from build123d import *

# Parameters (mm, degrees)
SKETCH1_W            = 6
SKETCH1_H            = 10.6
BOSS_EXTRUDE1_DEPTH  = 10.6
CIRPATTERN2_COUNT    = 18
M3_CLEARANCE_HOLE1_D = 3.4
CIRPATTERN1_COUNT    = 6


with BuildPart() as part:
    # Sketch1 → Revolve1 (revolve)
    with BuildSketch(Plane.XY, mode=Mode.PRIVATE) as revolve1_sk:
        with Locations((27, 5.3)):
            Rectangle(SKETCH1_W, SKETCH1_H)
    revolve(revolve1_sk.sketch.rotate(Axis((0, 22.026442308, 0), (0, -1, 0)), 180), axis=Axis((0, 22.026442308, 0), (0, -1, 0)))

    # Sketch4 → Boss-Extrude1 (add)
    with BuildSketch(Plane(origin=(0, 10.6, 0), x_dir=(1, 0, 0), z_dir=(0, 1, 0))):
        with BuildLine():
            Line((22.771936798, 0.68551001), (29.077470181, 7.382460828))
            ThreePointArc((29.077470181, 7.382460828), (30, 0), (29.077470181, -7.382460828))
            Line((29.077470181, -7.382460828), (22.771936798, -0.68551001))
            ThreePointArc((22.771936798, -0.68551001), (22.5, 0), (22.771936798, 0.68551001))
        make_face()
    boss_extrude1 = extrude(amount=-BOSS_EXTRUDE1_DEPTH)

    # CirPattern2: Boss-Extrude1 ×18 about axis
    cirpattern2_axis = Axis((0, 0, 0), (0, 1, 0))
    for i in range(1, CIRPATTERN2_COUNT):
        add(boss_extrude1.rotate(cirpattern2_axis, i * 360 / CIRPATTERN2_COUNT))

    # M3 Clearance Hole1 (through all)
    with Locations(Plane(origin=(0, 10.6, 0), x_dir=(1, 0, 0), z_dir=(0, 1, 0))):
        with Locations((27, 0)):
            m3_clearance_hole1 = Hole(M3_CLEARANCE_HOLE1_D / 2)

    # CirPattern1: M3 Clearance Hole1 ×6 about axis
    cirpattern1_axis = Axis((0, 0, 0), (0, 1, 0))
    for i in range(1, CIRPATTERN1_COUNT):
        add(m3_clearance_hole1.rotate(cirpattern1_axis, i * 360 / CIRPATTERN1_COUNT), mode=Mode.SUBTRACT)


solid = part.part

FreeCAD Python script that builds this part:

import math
import FreeCAD as App
import Part
import Sketcher

doc = App.newDocument("Part")
body = doc.addObject("PartDesign::Body", "Body")

# Sketch on XY plane
sketch1 = body.newObject("Sketcher::SketchObject", "Sketch")
sketch1.AttachmentSupport = (doc.getObject("XY_Plane"), [""])
sketch1.MapMode = "FlatFace"
sketch1.addGeometry(Part.LineSegment(App.Vector(24, 10.6, 0), App.Vector(24, 0, 0)), False)
sketch1.addGeometry(Part.LineSegment(App.Vector(24, 0, 0), App.Vector(30, 0, 0)), False)
sketch1.addGeometry(Part.LineSegment(App.Vector(30, 0, 0), App.Vector(30, 10.6, 0)), False)
sketch1.addGeometry(Part.LineSegment(App.Vector(30, 10.6, 0), App.Vector(24, 10.6, 0)), False)
sketch1.addConstraint(Sketcher.Constraint("Coincident", 0, 2, 1, 1))
sketch1.addConstraint(Sketcher.Constraint("Coincident", 1, 2, 2, 1))
sketch1.addConstraint(Sketcher.Constraint("Coincident", 2, 2, 3, 1))
sketch1.addConstraint(Sketcher.Constraint("Coincident", 3, 2, 0, 1))
sketch1.addConstraint(Sketcher.Constraint("Vertical", 0))
sketch1.addConstraint(Sketcher.Constraint("Horizontal", 1))
sketch1.addConstraint(Sketcher.Constraint("Vertical", 2))
sketch1.addConstraint(Sketcher.Constraint("Horizontal", 3))
sketch1.addConstraint(Sketcher.Constraint("PointOnObject", 0, 2, -1))
sketch1.addConstraint(Sketcher.Constraint("DistanceX", 1, 1, 1, 2, 6.0))
sketch1.addConstraint(Sketcher.Constraint("DistanceY", 0, 2, 0, 1, 10.6))
sketch1.addConstraint(Sketcher.Constraint("DistanceX", -1, 1, 0, 2, 24.0))
revolution = body.newObject("PartDesign::Revolution", "Revolution")
revolution.Profile = sketch1
revolution.ReferenceAxis = (sketch1, ["V_Axis"])
revolution.Angle = 360

# Sketch on XZ plane
sketch2 = body.newObject("Sketcher::SketchObject", "Sketch001")
sketch2.AttachmentSupport = (doc.getObject("XZ_Plane"), [""])
sketch2.MapMode = "FlatFace"
sketch2.AttachmentOffset = App.Placement(App.Vector(0, 0, -10.6), App.Rotation())
sketch2.addGeometry(Part.LineSegment(App.Vector(29.07747, -7.382461, 0), App.Vector(22.771937, -0.68551, 0)), False)
sketch2.addGeometry(Part.ArcOfCircle(Part.Circle(App.Vector(23.5, 0, 0), App.Vector(0, 0, 1), 1), math.radians(136.72427), math.radians(223.27573)), False)
sketch2.addGeometry(Part.LineSegment(App.Vector(22.771937, 0.68551, 0), App.Vector(29.07747, 7.382461, 0)), False)
sketch2.addGeometry(Part.ArcOfCircle(Part.Circle(App.Vector(0, 0, 0), App.Vector(0, 0, 1), 30), math.radians(-14.245787), math.radians(14.245787)), False)
sketch2.addConstraint(Sketcher.Constraint("Tangent", 0, 2, 1, 2))
sketch2.addConstraint(Sketcher.Constraint("Tangent", 1, 1, 2, 1))
sketch2.addConstraint(Sketcher.Constraint("Coincident", 2, 2, 3, 2))
sketch2.addConstraint(Sketcher.Constraint("Coincident", 3, 1, 0, 1))
sketch2.addConstraint(Sketcher.Constraint("Coincident", 3, 3, -1, 1))
sketch2.addConstraint(Sketcher.Constraint("Symmetric", 0, 2, 1, 1, -1))
sketch2.addConstraint(Sketcher.Constraint("Radius", 1, 1.0))
sketch2.addConstraint(Sketcher.Constraint("Radius", 3, 30.0))
sketch2.addConstraint(Sketcher.Constraint("DistanceX", -1, 1, 1, 3, 23.5))
sketch2.addConstraint(Sketcher.Constraint("Distance", 0, 9.19831))
pad1 = body.newObject("PartDesign::Pad", "Pad")
pad1.Profile = sketch2
pad1.Length = 10.6
doc.recompute()

polarpattern = body.newObject("PartDesign::PolarPattern", "PolarPattern")
polarpattern.Originals = [pad1]
polarpattern.Axis = (doc.getObject("Y_Axis"), [""])
polarpattern.Angle = 360
polarpattern.Occurrences = 18
body.Tip = polarpattern

# Sketch on XZ plane
sketch3 = body.newObject("Sketcher::SketchObject", "Sketch002")
sketch3.AttachmentSupport = (doc.getObject("XZ_Plane"), [""])
sketch3.MapMode = "FlatFace"
sketch3.AttachmentOffset = App.Placement(App.Vector(0, 0, -10.6), App.Rotation())
sketch3.addGeometry(Part.Circle(App.Vector(27, 0, 0), App.Vector(0, 0, 1), 1.7), False)
sketch3.addConstraint(Sketcher.Constraint("PointOnObject", 0, 3, -1))
sketch3.addConstraint(Sketcher.Constraint("Diameter", 0, 3.4))
sketch3.addConstraint(Sketcher.Constraint("DistanceX", -1, 1, 0, 3, 27.0))
doc.recompute()
hole = body.newObject("PartDesign::Hole", "Hole")
hole.Profile = sketch3
hole.ThreadType = "None"
hole.Diameter = 3.4
hole.DepthType = "ThroughAll"
hole.Reversed = True
doc.recompute()

polarpattern2 = body.newObject("PartDesign::PolarPattern", "PolarPattern001")
polarpattern2.Originals = [hole]
polarpattern2.Axis = (doc.getObject("Y_Axis"), [""])
polarpattern2.Angle = 360
polarpattern2.Occurrences = 6
body.Tip = polarpattern2

doc.recompute()
